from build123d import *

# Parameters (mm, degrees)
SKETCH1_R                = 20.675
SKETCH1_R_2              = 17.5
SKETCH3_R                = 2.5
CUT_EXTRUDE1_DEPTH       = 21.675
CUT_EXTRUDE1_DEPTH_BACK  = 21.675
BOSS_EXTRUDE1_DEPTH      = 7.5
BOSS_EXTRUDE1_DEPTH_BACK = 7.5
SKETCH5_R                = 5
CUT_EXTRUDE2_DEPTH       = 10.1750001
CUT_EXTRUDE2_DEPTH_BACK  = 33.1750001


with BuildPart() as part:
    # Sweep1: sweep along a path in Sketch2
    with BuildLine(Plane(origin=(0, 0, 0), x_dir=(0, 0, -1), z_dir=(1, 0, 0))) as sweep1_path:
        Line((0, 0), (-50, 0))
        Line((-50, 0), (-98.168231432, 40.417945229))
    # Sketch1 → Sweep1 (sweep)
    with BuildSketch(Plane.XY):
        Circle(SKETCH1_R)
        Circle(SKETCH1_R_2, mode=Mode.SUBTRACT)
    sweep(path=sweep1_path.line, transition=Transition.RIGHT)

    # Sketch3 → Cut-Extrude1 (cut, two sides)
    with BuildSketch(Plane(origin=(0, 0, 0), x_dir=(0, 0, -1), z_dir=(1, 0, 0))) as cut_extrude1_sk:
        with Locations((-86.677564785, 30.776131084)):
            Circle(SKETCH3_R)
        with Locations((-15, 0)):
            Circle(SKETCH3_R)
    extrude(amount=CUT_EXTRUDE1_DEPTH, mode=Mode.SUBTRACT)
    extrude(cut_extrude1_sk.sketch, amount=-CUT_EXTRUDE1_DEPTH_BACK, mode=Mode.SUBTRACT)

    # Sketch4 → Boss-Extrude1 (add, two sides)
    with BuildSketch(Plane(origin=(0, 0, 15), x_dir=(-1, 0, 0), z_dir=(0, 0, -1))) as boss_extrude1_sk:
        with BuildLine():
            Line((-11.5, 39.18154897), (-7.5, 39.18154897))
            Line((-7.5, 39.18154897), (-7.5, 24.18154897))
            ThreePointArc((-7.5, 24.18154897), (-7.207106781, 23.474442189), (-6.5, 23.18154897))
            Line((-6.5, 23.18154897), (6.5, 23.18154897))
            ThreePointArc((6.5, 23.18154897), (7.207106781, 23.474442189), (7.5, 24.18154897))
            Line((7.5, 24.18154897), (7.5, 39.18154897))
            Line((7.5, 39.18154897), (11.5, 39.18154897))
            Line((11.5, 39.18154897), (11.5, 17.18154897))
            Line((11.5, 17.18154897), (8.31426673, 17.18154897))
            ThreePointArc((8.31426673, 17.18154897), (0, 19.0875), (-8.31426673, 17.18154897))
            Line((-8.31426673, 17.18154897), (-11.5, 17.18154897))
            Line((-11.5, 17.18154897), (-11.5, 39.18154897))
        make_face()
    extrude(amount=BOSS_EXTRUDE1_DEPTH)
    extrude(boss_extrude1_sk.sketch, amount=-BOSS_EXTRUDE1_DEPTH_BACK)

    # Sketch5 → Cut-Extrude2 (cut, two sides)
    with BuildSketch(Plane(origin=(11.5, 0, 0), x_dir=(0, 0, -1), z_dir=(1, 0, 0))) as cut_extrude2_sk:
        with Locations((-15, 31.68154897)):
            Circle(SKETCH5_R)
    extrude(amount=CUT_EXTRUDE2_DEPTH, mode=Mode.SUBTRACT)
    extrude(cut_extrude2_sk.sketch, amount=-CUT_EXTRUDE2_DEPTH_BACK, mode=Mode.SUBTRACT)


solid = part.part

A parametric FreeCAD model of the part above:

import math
import FreeCAD as App
import Part
import Sketcher
from FreeCAD import Vector
Q = App.Units.Quantity

doc = App.newDocument("Part")
body = doc.addObject("PartDesign::Body", "Body")

# Sketch on XY plane
sketch1 = body.newObject("Sketcher::SketchObject", "Sketch")
sketch1.AttachmentSupport = (doc.getObject("XY_Plane"), [""])
sketch1.MapMode = "FlatFace"
sketch1.addGeometry(Part.Circle(Vector(0, 0, 0), Vector(0, 0, 1), 20.675), False)
sketch1.addGeometry(Part.Circle(Vector(0, 0, 0), Vector(0, 0, 1), 17.5), False)
sketch1.addConstraint(Sketcher.Constraint("Coincident", 0, 3, -1, 1))
sketch1.addConstraint(Sketcher.Constraint("Coincident", 1, 3, -1, 1))
sketch1.addConstraint(Sketcher.Constraint("Diameter", 1, 35.0))
sketch1.addConstraint(Sketcher.Constraint("Diameter", 0, 41.35))

# Sketch on YZ plane
sketch2 = body.newObject("Sketcher::SketchObject", "Sketch001")
sketch2.AttachmentSupport = (doc.getObject("YZ_Plane"), [""])
sketch2.MapMode = "FlatFace"
sketch2.addGeometry(Part.LineSegment(Vector(0, 0, 0), Vector(0, 50, 0)), False)
sketch2.addGeometry(Part.LineSegment(Vector(0, 50, 0), Vector(40.417945, 98.168231, 0)), False)
sketch2.addConstraint(Sketcher.Constraint("Coincident", 0, 2, 1, 1))
sketch2.addConstraint(Sketcher.Constraint("Vertical", 0))
sketch2.addConstraint(Sketcher.Constraint("Coincident", 0, 1, -1, 1))
sketch2.addConstraint(Sketcher.Constraint("DistanceY", 0, 1, 0, 2, 50.0))
sketch2.addConstraint(Sketcher.Constraint("Angle", 1, Q("50 deg")))
sketch2.addConstraint(Sketcher.Constraint("Distance", 1, 62.87916))
doc.recompute()

additivepipe = body.newObject("PartDesign::AdditivePipe", "AdditivePipe")
additivepipe.Profile = sketch1
additivepipe.Spine = (sketch2, ["Edge1", "Edge2"])
additivepipe.Transition = "Right corner"

# Sketch on YZ plane
sketch3 = body.newObject("Sketcher::SketchObject", "Sketch002")
sketch3.AttachmentSupport = (doc.getObject("YZ_Plane"), [""])
sketch3.MapMode = "FlatFace"
sketch3.addGeometry(Part.Circle(Vector(30.776131, 86.677565, 0), Vector(0, 0, 1), 2.5), False)
sketch3.addGeometry(Part.Circle(Vector(0, 15, 0), Vector(0, 0, 1), 2.5), False)
sketch3.addConstraint(Sketcher.Constraint("Equal", 0, 1))
sketch3.addConstraint(Sketcher.Constraint("PointOnObject", 1, 3, -2))
sketch3.addConstraint(Sketcher.Constraint("Diameter", 0, 5.0))
sketch3.addConstraint(Sketcher.Constraint("DistanceY", -1, 1, 1, 3, 15.0))
sketch3.addConstraint(Sketcher.Constraint("DistanceX", -1, 1, 0, 3, 30.776131))
sketch3.addConstraint(Sketcher.Constraint("DistanceY", -1, 1, 0, 3, 86.677565))
pocket1 = body.newObject("PartDesign::Pocket", "Pocket")
pocket1.Profile = sketch3
pocket1.Type = "ThroughAll"
pocket1.Midplane = True

# Sketch on XY plane
sketch4 = body.newObject("Sketcher::SketchObject", "Sketch003")
sketch4.AttachmentSupport = (doc.getObject("XY_Plane"), [""])
sketch4.MapMode = "FlatFace"
sketch4.AttachmentOffset = App.Placement(Vector(0, 0, 15), App.Rotation())
sketch4.addGeometry(Part.LineSegment(Vector(7.5, 39.181549, 0), Vector(11.5, 39.181549, 0)), False)
sketch4.addGeometry(Part.LineSegment(Vector(11.5, 39.181549, 0), Vector(11.5, 17.181549, 0)), False)
sketch4.addGeometry(Part.LineSegment(Vector(11.5, 17.181549, 0), Vector(8.314267, 17.181549, 0)), False)
sketch4.addGeometry(Part.ArcOfCircle(Part.Circle(Vector(0, 0, 0), Vector(0, 0, 1), 19.0875), math.radians(64.177349), math.radians(115.822651)), False)
sketch4.addGeometry(Part.LineSegment(Vector(-8.314267, 17.181549, 0), Vector(-11.5, 17.181549, 0)), False)
sketch4.addGeometry(Part.LineSegment(Vector(-11.5, 17.181549, 0), Vector(-11.5, 39.181549, 0)), False)
sketch4.addGeometry(Part.LineSegment(Vector(-11.5, 39.181549, 0), Vector(-7.5, 39.181549, 0)), False)
sketch4.addGeometry(Part.LineSegment(Vector(-7.5, 39.181549, 0), Vector(-7.5, 24.181549, 0)), False)
sketch4.addGeometry(Part.ArcOfCircle(Part.Circle(Vector(-6.5, 24.181549, 0), Vector(0, 0, 1), 1), math.radians(-180), math.radians(-90)), False)
sketch4.addGeometry(Part.LineSegment(Vector(-6.5, 23.181549, 0), Vector(6.5, 23.181549, 0)), False)
sketch4.addGeometry(Part.ArcOfCircle(Part.Circle(Vector(6.5, 24.181549, 0), Vector(0, 0, 1), 1), math.radians(-90), math.radians(0)), False)
sketch4.addGeometry(Part.LineSegment(Vector(7.5, 24.181549, 0), Vector(7.5, 39.181549, 0)), False)
sketch4.addConstraint(Sketcher.Constraint("Coincident", 0, 2, 1, 1))
sketch4.addConstraint(Sketcher.Constraint("Coincident", 1, 2, 2, 1))
sketch4.addConstraint(Sketcher.Constraint("Coincident", 2, 2, 3, 1))
sketch4.addConstraint(Sketcher.Constraint("Coincident", 3, 2, 4, 1))
sketch4.addConstraint(Sketcher.Constraint("Coincident", 4, 2, 5, 1))
sketch4.addConstraint(Sketcher.Constraint("Coincident", 5, 2, 6, 1))
sketch4.addConstraint(Sketcher.Constraint("Coincident", 6, 2, 7, 1))
sketch4.addConstraint(Sketcher.Constraint("Tangent", 7, 2, 8, 1))
sketch4.addConstraint(Sketcher.Constraint("Tangent", 8, 2, 9, 1))
sketch4.addConstraint(Sketcher.Constraint("Tangent", 9, 2, 10, 1))
sketch4.addConstraint(Sketcher.Constraint("Tangent", 10, 2, 11, 1))
sketch4.addConstraint(Sketcher.Constraint("Coincident", 11, 2, 0, 1))
sketch4.addConstraint(Sketcher.Constraint("Horizontal", 0))
sketch4.addConstraint(Sketcher.Constraint("Vertical", 1))
sketch4.addConstraint(Sketcher.Constraint("Horizontal", 2))
sketch4.addConstraint(Sketcher.Constraint("Horizontal", 4))
sketch4.addConstraint(Sketcher.Constraint("Vertical", 5))
sketch4.addConstraint(Sketcher.Constraint("Horizontal", 6))
sketch4.addConstraint(Sketcher.Constraint("Vertical", 7))
sketch4.addConstraint(Sketcher.Constraint("Horizontal", 9))
sketch4.addConstraint(Sketcher.Constraint("Vertical", 11))
sketch4.addConstraint(Sketcher.Constraint("Coincident", 3, 3, -1, 1))
sketch4.addConstraint(Sketcher.Constraint("Equal", 8, 10))
sketch4.addConstraint(Sketcher.Constraint("Symmetric", 1, 2, 4, 2, -2))
sketch4.addConstraint(Sketcher.Constraint("Symmetric", 6, 2, 11, 2, -2))
sketch4.addConstraint(Sketcher.Constraint("Radius", 8, 1.0))
sketch4.addConstraint(Sketcher.Constraint("DistanceX", 0, 1, 0, 2, 4.0))
sketch4.addConstraint(Sketcher.Constraint("DistanceX", 9, 1, 9, 2, 13.0))
sketch4.addConstraint(Sketcher.Constraint("DistanceY", 1, 2, 1, 1, 22.0))
sketch4.addConstraint(Sketcher.Constraint("DistanceY", 7, 2, 7, 1, 15.0))
sketch4.addConstraint(Sketcher.Constraint("Radius", 3, 19.0875))
sketch4.addConstraint(Sketcher.Constraint("DistanceX", 2, 2, 2, 1, 3.185733))
pad1 = body.newObject("PartDesign::Pad", "Pad")
pad1.Profile = sketch4
pad1.Type = "TwoLengths"
pad1.Length = 7.5
pad1.Length2 = 7.5
pad1.Reversed = True

# Sketch on YZ plane
sketch5 = body.newObject("Sketcher::SketchObject", "Sketch004")
sketch5.AttachmentSupport = (doc.getObject("YZ_Plane"), [""])
sketch5.MapMode = "FlatFace"
sketch5.AttachmentOffset = App.Placement(Vector(0, 0, 11.5), App.Rotation())
sketch5.addGeometry(Part.Circle(Vector(31.681549, 15, 0), Vector(0, 0, 1), 5), False)
sketch5.addConstraint(Sketcher.Constraint("Diameter", 0, 10.0))
sketch5.addConstraint(Sketcher.Constraint("DistanceY", -1, 1, 0, 3, 15.0))
sketch5.addConstraint(Sketcher.Constraint("DistanceX", -1, 1, 0, 3, 31.681549))
pocket2 = body.newObject("PartDesign::Pocket", "Pocket001")
pocket2.Profile = sketch5
pocket2.Type = "ThroughAll"
pocket2.Midplane = True

doc.recompute()
